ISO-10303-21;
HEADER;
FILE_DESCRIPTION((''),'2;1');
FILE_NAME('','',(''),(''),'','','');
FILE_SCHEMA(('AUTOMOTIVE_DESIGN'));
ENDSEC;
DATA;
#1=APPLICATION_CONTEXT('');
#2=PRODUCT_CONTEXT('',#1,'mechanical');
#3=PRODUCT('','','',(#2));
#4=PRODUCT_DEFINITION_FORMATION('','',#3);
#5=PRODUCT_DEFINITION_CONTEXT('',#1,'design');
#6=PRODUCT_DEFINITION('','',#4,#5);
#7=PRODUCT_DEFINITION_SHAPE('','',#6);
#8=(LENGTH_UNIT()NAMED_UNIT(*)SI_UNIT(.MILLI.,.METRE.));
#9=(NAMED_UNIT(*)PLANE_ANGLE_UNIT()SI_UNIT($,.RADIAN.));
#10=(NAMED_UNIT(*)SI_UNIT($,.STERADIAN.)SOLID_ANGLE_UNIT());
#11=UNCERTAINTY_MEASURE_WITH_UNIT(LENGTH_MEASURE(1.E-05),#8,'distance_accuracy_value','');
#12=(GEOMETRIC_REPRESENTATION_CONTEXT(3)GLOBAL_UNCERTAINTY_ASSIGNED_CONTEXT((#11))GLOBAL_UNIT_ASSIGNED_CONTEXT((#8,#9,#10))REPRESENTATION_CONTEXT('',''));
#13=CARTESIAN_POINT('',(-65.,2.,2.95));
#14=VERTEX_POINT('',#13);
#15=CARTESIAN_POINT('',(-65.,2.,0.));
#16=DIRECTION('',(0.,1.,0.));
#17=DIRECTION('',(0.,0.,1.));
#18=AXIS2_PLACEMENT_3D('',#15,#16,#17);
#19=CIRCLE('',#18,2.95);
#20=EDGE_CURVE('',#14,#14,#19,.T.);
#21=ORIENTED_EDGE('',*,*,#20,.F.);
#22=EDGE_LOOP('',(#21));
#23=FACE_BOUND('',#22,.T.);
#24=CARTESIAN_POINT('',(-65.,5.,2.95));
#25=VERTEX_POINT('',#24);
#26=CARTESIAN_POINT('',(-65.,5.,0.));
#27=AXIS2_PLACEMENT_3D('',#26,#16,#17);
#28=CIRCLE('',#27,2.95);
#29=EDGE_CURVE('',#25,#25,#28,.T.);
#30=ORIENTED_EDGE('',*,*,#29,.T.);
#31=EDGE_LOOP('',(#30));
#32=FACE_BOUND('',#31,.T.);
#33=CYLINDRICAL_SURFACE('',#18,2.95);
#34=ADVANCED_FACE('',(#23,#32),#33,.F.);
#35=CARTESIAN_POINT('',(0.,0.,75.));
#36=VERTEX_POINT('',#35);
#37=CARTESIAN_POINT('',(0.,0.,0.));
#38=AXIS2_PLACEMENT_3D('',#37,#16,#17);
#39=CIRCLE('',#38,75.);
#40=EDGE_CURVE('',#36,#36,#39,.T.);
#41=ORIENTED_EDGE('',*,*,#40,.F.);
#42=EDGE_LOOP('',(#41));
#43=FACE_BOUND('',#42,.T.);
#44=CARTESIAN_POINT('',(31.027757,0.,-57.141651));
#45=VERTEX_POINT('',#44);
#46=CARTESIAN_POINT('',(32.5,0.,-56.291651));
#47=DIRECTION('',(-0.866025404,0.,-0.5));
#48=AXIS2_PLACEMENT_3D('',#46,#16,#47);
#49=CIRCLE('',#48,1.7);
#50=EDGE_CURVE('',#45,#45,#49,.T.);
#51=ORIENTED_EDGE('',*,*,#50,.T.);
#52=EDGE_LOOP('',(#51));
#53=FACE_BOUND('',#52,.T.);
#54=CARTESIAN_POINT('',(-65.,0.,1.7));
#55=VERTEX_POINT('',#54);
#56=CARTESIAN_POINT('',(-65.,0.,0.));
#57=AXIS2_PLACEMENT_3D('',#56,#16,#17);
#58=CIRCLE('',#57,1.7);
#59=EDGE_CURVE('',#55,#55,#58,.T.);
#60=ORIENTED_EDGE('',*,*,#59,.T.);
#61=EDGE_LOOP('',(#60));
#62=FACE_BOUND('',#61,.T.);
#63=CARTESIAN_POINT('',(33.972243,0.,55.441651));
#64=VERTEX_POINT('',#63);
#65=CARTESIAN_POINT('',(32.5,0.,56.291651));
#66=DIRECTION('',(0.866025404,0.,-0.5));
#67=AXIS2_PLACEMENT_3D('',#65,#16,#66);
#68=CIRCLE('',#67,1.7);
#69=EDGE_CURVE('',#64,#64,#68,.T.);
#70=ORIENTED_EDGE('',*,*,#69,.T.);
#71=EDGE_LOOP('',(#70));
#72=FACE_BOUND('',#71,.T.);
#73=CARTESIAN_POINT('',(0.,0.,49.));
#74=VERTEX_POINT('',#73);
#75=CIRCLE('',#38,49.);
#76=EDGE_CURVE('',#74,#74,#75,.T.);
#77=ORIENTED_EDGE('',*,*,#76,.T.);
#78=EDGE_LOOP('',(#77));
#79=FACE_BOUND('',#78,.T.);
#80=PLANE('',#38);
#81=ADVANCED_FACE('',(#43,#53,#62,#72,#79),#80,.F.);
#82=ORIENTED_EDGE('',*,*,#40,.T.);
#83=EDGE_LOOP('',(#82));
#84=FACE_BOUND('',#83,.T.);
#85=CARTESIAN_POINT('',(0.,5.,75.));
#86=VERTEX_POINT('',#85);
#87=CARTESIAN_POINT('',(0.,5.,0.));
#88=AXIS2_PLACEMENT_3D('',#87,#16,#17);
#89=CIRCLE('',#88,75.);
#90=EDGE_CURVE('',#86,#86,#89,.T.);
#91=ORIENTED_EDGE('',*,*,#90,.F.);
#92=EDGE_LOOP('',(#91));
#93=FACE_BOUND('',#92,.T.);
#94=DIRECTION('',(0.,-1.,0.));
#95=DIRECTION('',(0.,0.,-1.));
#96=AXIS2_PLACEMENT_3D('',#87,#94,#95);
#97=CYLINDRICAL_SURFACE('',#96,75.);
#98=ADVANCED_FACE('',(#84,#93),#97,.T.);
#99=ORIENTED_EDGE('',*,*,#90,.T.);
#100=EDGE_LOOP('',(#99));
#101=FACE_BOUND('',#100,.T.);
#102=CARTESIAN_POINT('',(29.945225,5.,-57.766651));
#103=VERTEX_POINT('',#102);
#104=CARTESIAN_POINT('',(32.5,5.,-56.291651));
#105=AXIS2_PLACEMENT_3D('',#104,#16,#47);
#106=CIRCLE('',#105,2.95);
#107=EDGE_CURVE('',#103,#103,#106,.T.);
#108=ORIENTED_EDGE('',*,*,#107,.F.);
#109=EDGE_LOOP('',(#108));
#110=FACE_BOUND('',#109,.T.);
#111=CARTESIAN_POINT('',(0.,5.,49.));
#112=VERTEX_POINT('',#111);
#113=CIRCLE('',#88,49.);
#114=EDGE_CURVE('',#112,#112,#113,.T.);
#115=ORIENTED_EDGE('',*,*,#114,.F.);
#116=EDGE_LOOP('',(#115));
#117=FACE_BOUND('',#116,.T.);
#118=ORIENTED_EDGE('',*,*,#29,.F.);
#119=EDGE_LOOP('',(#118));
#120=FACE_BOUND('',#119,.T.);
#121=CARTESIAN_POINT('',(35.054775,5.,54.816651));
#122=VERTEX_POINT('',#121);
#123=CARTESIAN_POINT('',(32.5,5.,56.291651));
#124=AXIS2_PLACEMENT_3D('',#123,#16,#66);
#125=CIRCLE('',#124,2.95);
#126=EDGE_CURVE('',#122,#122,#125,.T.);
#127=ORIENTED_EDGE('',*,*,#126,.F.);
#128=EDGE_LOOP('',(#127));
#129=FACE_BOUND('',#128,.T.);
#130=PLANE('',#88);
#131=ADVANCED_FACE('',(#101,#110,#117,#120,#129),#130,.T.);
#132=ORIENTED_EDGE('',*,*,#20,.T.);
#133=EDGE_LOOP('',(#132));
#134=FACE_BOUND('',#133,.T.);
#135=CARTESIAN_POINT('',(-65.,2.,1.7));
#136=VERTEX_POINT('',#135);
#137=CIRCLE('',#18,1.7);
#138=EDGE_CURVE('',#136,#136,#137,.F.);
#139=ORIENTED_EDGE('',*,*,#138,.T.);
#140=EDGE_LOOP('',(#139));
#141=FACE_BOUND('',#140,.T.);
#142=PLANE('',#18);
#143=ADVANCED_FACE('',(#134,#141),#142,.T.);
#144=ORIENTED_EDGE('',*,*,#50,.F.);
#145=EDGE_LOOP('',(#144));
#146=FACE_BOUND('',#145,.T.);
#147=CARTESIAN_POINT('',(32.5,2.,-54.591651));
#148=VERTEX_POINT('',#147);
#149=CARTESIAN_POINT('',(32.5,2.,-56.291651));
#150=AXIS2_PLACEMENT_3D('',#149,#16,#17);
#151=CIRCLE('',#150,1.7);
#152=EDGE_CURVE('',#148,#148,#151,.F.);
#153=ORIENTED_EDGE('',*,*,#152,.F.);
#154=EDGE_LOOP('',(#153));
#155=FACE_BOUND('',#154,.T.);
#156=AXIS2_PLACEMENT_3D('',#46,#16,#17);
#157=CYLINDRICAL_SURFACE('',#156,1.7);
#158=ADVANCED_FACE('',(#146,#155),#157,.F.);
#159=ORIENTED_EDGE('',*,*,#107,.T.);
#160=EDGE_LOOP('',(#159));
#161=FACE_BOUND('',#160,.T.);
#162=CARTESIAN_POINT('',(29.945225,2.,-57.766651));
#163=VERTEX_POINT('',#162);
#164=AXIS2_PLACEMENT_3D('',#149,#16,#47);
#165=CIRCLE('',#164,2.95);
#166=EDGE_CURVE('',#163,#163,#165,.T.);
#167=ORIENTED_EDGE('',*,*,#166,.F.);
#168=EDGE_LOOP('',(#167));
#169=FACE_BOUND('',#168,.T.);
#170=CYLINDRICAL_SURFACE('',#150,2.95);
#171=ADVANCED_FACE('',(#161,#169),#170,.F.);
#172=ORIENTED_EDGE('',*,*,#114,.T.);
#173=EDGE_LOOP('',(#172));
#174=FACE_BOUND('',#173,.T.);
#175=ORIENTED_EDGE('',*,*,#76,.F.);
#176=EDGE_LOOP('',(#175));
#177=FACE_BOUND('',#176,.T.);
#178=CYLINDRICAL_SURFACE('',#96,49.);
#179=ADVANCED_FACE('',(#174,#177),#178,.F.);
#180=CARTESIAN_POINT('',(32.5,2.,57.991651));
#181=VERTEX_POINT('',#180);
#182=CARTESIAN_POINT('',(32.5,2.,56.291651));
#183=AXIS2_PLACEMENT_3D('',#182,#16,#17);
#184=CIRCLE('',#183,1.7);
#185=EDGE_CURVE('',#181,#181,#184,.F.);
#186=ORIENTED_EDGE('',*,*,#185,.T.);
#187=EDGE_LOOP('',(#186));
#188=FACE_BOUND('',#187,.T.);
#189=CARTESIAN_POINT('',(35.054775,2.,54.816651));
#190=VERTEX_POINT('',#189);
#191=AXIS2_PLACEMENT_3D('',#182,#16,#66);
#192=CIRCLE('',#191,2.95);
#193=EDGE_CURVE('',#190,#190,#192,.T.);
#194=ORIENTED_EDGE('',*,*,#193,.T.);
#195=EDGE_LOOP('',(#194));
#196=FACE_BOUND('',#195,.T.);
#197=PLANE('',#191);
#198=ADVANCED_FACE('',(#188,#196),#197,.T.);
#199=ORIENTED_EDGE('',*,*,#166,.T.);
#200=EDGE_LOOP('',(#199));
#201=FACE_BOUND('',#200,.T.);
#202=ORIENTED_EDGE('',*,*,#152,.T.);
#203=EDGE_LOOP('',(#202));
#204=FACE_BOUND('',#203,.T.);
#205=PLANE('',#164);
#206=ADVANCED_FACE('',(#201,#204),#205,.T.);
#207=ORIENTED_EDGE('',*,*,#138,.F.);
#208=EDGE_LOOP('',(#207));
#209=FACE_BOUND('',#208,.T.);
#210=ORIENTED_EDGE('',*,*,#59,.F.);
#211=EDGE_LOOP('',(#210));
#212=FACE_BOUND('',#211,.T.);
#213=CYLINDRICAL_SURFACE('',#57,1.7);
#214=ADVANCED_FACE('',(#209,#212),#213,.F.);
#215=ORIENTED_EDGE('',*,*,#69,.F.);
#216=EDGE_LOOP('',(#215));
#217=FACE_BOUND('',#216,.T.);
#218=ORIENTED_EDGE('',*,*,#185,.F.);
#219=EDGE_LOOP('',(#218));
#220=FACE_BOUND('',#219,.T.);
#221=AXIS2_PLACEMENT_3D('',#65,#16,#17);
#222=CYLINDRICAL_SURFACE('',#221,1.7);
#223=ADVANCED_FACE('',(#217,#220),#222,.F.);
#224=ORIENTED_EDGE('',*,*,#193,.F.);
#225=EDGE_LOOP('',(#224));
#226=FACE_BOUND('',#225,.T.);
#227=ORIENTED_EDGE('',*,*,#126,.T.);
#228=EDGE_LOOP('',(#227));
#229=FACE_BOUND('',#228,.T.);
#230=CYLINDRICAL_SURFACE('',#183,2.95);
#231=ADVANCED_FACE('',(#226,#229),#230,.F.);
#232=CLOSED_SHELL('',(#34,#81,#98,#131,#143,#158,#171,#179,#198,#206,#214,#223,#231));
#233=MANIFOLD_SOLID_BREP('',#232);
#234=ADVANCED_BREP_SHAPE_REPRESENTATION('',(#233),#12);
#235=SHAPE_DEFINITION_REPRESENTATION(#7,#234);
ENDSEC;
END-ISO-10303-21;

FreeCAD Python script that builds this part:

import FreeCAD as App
import Part
import Sketcher

doc = App.newDocument("Part")
body = doc.addObject("PartDesign::Body", "Body")

# Sketch on XZ plane
sketch1 = body.newObject("Sketcher::SketchObject", "Sketch")
sketch1.AttachmentSupport = (doc.getObject("XZ_Plane"), [""])
sketch1.MapMode = "FlatFace"
sketch1.addGeometry([
    Part.Circle(App.Vector(0, 0, 0), App.Vector(0, 0, 1), 75),
    Part.Circle(App.Vector(0, 0, 0), App.Vector(0, 0, 1), 49),
], False)
sketch1.addConstraint([
    Sketcher.Constraint("Coincident", 0, 3, -1, 1),
    Sketcher.Constraint("Coincident", 1, 3, -1, 1),
    Sketcher.Constraint("Diameter", 0, 150.0),
    Sketcher.Constraint("Diameter", 1, 98.0),
])
pad1 = body.newObject("PartDesign::Pad", "Pad")
pad1.Profile = sketch1
pad1.Length = 5
pad1.Reversed = True

# Sketch on XZ plane
sketch2 = body.newObject("Sketcher::SketchObject", "Sketch001")
sketch2.AttachmentSupport = (doc.getObject("XZ_Plane"), [""])
sketch2.MapMode = "FlatFace"
sketch2.AttachmentOffset = App.Placement(App.Vector(0, 0, -5), App.Rotation())
sketch2.addGeometry(Part.Circle(App.Vector(-65, 0, 0), App.Vector(0, 0, 1), 1.7), False)
sketch2.addConstraint([
    Sketcher.Constraint("PointOnObject", 0, 3, -1),
    Sketcher.Constraint("Diameter", 0, 3.4),
    Sketcher.Constraint("DistanceX", 0, 3, -1, 1, 65.0),
])
pocket1 = body.newObject("PartDesign::Pocket", "Pocket")
pocket1.Profile = sketch2
pocket1.Length = 5
pocket1.Reversed = True

# Sketch on XZ plane
sketch3 = body.newObject("Sketcher::SketchObject", "Sketch002")
sketch3.AttachmentSupport = (doc.getObject("XZ_Plane"), [""])
sketch3.MapMode = "FlatFace"
sketch3.AttachmentOffset = App.Placement(App.Vector(0, 0, -5), App.Rotation())
sketch3.addGeometry(Part.Circle(App.Vector(-65, 0, 0), App.Vector(0, 0, 1), 3), False)
sketch3.addConstraint([
    Sketcher.Constraint("PointOnObject", 0, 3, -1),
    Sketcher.Constraint("Diameter", 0, 5.9),
    Sketcher.Constraint("DistanceX", 0, 3, -1, 1, 65.0),
])
pocket2 = body.newObject("PartDesign::Pocket", "Pocket001")
pocket2.Profile = sketch3
pocket2.Length = 3
pocket2.Reversed = True
doc.recompute()

polarpattern = body.newObject("PartDesign::PolarPattern", "PolarPattern")
polarpattern.Originals = [pocket1, pocket2]
polarpattern.Axis = (doc.getObject("Y_Axis"), [""])
polarpattern.Angle = 360
polarpattern.Occurrences = 3
body.Tip = polarpattern

doc.recompute()
